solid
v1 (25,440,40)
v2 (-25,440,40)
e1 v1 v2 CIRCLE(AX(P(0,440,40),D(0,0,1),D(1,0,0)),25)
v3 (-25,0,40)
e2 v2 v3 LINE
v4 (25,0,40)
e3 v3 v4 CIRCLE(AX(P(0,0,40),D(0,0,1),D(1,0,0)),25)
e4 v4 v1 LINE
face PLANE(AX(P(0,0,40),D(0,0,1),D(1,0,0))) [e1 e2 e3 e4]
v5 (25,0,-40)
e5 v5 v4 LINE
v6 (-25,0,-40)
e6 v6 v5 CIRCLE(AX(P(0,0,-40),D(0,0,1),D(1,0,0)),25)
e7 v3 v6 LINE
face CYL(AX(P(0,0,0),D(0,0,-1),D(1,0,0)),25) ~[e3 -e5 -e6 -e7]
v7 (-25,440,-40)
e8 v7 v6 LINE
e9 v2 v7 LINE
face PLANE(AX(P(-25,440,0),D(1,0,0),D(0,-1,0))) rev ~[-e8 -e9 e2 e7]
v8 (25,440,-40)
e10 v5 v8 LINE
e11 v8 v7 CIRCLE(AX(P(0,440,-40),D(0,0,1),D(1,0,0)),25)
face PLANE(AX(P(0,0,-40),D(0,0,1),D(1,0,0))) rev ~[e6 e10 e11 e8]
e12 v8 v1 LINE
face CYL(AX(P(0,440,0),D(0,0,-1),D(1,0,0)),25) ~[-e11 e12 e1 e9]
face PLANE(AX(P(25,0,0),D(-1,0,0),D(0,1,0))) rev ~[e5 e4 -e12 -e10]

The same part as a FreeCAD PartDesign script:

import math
import FreeCAD as App
import Part
import Sketcher
Q = App.Units.Quantity

doc = App.newDocument("Part")
body = doc.addObject("PartDesign::Body", "Body")

sketch1 = doc.addObject("Sketcher::SketchObject", "Sketch")
body.addObject(sketch1)
sketch1.AttachmentSupport = (doc.XY_Plane, [""])
sketch1.MapMode = "FlatFace"
sketch1.addGeometry([
    Part.ArcOfCircle(Part.Circle(App.Vector(0, 0, 0), App.Vector(0, 0, 1), 25), math.radians(180), math.radians(360)),
    Part.LineSegment(App.Vector(25, 0, 0), App.Vector(25, 440, 0)),
    Part.ArcOfCircle(Part.Circle(App.Vector(0, 440, 0), App.Vector(0, 0, 1), 25), math.radians(0), math.radians(180)),
    Part.LineSegment(App.Vector(-25, 440, 0), App.Vector(-25, 0, 0)),
], False)
sketch1.addConstraint([
    Sketcher.Constraint("Tangent", 0, 2, 1, 1),
    Sketcher.Constraint("Tangent", 1, 2, 2, 1),
    Sketcher.Constraint("Tangent", 2, 2, 3, 1),
    Sketcher.Constraint("Tangent", 3, 2, 0, 1),
    Sketcher.Constraint("Vertical", 1),
    Sketcher.Constraint("Vertical", 3),
    Sketcher.Constraint("Coincident", 0, 3, -1, 1),
    Sketcher.Constraint("Radius", 0, Q("25 mm")),
    Sketcher.Constraint("DistanceY", 1, 1, 1, 2, Q("440 mm")),
])
pad1 = doc.addObject("PartDesign::Pad", "Pad")
body.addObject(pad1)
pad1.Profile = sketch1
pad1.Length = 80
pad1.Midplane = True

doc.recompute()
